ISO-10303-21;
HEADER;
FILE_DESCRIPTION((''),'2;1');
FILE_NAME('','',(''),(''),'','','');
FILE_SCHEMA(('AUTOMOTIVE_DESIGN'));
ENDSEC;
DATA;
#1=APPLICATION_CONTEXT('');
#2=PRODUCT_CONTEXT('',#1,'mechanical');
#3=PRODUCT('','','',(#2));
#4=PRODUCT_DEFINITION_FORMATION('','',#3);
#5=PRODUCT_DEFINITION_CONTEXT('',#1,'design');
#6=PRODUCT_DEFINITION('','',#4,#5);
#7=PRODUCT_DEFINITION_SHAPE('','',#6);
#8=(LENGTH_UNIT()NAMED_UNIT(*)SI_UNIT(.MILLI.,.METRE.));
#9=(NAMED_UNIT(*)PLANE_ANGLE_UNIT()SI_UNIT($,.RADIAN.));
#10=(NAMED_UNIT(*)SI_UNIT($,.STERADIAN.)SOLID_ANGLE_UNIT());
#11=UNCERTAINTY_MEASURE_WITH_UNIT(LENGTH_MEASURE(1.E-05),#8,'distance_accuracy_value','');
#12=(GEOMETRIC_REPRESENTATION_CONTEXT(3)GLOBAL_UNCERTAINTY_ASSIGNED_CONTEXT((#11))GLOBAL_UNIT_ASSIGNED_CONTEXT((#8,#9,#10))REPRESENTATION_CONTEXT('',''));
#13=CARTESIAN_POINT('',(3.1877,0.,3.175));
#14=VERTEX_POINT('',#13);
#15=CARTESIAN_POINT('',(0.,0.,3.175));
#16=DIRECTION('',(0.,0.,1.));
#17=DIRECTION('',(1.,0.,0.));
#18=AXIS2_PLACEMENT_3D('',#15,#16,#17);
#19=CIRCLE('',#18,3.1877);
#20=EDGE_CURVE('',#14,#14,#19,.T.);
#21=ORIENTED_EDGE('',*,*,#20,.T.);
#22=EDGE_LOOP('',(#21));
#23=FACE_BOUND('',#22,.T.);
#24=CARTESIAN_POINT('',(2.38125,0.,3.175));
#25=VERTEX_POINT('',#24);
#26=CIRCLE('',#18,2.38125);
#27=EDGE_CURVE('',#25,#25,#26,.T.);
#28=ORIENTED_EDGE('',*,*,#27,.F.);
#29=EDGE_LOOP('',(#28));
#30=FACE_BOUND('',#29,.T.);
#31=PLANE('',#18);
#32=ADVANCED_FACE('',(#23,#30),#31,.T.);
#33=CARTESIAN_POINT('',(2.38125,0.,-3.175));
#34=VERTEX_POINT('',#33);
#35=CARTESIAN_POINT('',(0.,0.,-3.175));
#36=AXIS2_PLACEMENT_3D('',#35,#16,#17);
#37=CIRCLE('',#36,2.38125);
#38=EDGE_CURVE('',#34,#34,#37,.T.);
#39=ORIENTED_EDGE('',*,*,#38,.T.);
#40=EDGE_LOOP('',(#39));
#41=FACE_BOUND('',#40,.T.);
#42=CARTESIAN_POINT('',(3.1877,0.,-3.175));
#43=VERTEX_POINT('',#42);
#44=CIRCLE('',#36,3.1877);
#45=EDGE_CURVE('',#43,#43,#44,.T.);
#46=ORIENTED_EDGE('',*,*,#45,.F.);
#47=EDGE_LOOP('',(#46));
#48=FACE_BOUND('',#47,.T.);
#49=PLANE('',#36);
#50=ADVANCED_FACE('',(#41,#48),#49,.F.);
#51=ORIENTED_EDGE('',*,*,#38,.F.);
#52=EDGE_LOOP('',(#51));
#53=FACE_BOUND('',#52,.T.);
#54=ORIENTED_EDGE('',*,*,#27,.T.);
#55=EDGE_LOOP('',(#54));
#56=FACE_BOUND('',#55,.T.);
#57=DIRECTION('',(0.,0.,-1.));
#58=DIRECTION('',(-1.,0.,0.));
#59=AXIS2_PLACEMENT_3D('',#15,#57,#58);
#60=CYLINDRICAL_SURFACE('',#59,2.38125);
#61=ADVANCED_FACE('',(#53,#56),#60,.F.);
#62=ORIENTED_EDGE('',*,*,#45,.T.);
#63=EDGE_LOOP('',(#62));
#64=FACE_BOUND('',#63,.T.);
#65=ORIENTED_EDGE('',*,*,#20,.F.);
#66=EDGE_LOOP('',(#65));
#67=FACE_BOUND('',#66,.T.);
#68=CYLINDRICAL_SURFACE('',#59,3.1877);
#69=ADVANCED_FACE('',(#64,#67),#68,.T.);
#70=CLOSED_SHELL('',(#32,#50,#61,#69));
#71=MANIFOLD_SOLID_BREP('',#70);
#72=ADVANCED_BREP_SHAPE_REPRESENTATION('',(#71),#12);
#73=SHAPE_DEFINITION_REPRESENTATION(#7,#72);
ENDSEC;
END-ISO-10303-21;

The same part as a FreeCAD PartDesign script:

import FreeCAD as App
import Part
import Sketcher
from FreeCAD import Vector
Q = App.Units.Quantity

doc = App.newDocument("Part")
params = doc.addObject("Spreadsheet::Sheet", "Params")
for row, (alias, value) in enumerate([
    ("sketch1_diameter", "0.251 in"),
    ("sketch1_diameter2", "0.1875 in"),
    ("pad1_length", "0.25 in"),
], start=1):
    params.set(f"A{row}", alias)
    params.set(f"B{row}", "=" + value)
    params.setAlias(f"B{row}", alias)

body = doc.addObject("PartDesign::Body", "Body")

sketch1 = body.newObject("Sketcher::SketchObject", "Sketch")
sketch1.AttachmentSupport = (doc.getObject("XY_Plane"), [""])
sketch1.MapMode = "FlatFace"
sketch1.addGeometry([
    Part.Circle(Vector(0, 0, 0), Vector(0, 0, 1), 3.1877),
    Part.Circle(Vector(0, 0, 0), Vector(0, 0, 1), 2.38125),
], False)
sketch1.addConstraint([
    Sketcher.Constraint("Coincident", 0, 3, -1, 1),
    Sketcher.Constraint("Coincident", 1, 3, -1, 1),
    Sketcher.Constraint("Diameter", 0, Q("0.251 in")),
    Sketcher.Constraint("Diameter", 1, Q("0.1875 in")),
])
sketch1.setExpression("Constraints[2]", "Params.sketch1_diameter")
sketch1.setExpression("Constraints[3]", "Params.sketch1_diameter2")
pad1 = body.newObject("PartDesign::Pad", "Pad")
pad1.Profile = sketch1
pad1.setExpression("Length", "Params.pad1_length")
pad1.Midplane = True

doc.recompute()
